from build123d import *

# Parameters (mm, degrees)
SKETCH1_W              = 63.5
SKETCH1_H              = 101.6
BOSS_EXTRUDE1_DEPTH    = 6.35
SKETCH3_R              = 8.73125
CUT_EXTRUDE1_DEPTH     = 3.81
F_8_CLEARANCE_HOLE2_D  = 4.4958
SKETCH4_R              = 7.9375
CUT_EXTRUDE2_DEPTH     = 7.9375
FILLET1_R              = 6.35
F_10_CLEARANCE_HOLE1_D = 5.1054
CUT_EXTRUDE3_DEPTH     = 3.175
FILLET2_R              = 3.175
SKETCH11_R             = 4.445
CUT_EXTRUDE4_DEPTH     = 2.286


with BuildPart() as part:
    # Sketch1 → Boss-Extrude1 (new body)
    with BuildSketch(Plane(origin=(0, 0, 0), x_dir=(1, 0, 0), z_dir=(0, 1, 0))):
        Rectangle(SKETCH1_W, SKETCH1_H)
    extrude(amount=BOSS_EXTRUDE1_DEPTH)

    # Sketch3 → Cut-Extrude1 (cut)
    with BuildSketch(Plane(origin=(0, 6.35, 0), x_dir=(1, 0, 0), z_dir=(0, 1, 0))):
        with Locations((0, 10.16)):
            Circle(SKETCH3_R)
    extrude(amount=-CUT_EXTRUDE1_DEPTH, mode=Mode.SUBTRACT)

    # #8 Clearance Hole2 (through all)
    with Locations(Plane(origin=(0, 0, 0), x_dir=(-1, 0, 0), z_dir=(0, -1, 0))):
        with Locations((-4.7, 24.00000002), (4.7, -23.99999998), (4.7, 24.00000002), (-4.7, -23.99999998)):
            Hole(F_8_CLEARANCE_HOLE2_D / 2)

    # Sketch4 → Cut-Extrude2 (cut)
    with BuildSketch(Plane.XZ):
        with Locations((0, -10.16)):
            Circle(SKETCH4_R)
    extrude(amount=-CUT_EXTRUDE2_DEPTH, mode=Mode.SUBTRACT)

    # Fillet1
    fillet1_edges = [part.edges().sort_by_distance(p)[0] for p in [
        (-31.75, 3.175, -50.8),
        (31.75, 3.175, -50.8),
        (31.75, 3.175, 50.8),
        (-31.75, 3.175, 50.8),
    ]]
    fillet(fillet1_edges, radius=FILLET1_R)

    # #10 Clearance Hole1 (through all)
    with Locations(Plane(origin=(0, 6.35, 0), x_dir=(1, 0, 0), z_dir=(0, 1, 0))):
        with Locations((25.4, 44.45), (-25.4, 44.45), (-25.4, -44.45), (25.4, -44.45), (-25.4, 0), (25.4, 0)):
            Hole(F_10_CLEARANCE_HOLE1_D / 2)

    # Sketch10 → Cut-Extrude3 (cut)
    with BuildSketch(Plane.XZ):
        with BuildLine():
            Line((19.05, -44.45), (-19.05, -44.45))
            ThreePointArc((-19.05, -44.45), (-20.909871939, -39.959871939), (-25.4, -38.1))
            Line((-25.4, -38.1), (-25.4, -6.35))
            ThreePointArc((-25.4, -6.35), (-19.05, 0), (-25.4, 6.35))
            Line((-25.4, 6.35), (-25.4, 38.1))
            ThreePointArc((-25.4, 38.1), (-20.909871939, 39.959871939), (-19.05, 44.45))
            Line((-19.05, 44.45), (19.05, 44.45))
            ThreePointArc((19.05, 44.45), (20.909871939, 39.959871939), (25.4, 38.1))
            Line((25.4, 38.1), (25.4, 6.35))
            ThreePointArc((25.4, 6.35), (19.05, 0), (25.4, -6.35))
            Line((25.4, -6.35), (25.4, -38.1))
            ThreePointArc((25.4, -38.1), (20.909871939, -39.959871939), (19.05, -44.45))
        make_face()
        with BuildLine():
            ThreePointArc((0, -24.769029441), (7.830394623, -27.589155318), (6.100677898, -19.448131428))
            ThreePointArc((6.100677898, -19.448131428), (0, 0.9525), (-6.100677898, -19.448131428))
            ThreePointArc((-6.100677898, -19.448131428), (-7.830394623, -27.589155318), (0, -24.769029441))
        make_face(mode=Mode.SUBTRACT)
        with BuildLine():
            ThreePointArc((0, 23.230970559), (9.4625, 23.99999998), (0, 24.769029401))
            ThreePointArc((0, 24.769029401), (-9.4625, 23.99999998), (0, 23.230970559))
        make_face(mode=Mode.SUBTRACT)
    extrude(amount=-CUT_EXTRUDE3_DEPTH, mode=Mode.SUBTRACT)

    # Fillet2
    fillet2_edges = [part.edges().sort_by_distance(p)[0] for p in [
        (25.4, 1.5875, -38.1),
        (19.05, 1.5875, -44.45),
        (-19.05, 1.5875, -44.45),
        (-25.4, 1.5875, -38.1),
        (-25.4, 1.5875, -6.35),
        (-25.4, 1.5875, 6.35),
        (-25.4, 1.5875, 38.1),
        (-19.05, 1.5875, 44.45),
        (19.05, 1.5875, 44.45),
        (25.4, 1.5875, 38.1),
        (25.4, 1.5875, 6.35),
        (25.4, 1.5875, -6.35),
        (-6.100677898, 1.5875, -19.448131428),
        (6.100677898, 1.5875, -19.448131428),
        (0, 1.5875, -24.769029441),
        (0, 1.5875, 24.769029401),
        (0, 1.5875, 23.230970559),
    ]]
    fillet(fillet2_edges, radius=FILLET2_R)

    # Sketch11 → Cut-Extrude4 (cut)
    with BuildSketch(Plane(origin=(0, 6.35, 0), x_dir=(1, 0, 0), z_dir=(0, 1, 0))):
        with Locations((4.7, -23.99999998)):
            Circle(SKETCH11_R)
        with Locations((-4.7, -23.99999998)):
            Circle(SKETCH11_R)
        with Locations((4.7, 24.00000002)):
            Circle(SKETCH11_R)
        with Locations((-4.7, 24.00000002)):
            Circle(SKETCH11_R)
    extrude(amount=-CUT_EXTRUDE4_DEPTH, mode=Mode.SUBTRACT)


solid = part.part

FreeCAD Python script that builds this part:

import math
import FreeCAD as App
import Part
import Sketcher

V = App.Vector
Q = App.Units.Quantity


def edges_at(feature, points):
    """Names of the edges that pass closest to the given points."""
    edges = feature.Shape.Edges
    near = lambda p: min(range(len(edges)), key=lambda i: edges[i].distToShape(Part.Vertex(*p))[0])
    return sorted({f"Edge{near(p) + 1}" for p in points})

doc = App.newDocument("Part")
params = doc.addObject("Spreadsheet::Sheet", "Params")
for row, (alias, value) in enumerate([
    ("sketch1_height", "4 in"),
    ("sketch1_width", "2.5 in"),
    ("pad1_length", "0.25 in"),
    ("sketch2_diameter", "0.6875 in"),
    ("pocket1_length", "0.15 in"),
    ("sketch3_diameter", "0.177 in"),
    ("hole_diameter", "0.177 in"),
    ("sketch4_diameter", "0.625 in"),
    ("pocket2_length", "0.3125 in"),
    ("fillet_radius", "0.25 in"),
    ("sketch5_diameter", "0.201 in"),
    ("hole2_diameter", "0.201 in"),
    ("sketch6_radius", "0.25 in"),
    ("sketch6_width", "1.5 in"),
    ("sketch6_radius2", "0.1875 in"),
    ("sketch6_radius3", "0.4375 in"),
    ("sketch6_height", "1.25 in"),
    ("pocket3_length", "0.125 in"),
    ("fillet2_radius", "0.125 in"),
    ("sketch7_diameter", "0.35 in"),
    ("pocket4_length", "0.09 in"),
], start=1):
    params.set(f"A{row}", alias)
    params.set(f"B{row}", "=" + value)
    params.setAlias(f"B{row}", alias)

body = doc.addObject("PartDesign::Body", "Body")

sketch1 = doc.addObject("Sketcher::SketchObject", "Sketch")
body.addObject(sketch1)
sketch1.AttachmentSupport = (doc.XZ_Plane, [""])
sketch1.MapMode = "FlatFace"
sketch1.addGeometry([
    Part.LineSegment(V(-31.75, -50.8, 0), V(-31.75, 50.8, 0)),
    Part.LineSegment(V(-31.75, 50.8, 0), V(31.75, 50.8, 0)),
    Part.LineSegment(V(31.75, 50.8, 0), V(31.75, -50.8, 0)),
    Part.LineSegment(V(31.75, -50.8, 0), V(-31.75, -50.8, 0)),
], False)
sketch1.addConstraint([
    Sketcher.Constraint("Coincident", 0, 2, 1, 1),
    Sketcher.Constraint("Coincident", 1, 2, 2, 1),
    Sketcher.Constraint("Coincident", 2, 2, 3, 1),
    Sketcher.Constraint("Coincident", 3, 2, 0, 1),
    Sketcher.Constraint("Vertical", 0),
    Sketcher.Constraint("Horizontal", 1),
    Sketcher.Constraint("Vertical", 2),
    Sketcher.Constraint("Horizontal", 3),
    Sketcher.Constraint("Symmetric", 0, 2, 2, 2, -1, 1),
    Sketcher.Constraint("DistanceY", 0, 1, 0, 2, Q("4 in")),
    Sketcher.Constraint("DistanceX", 1, 1, 1, 2, Q("2.5 in")),
])
sketch1.setExpression("Constraints[9]", "Params.sketch1_height")
sketch1.setExpression("Constraints[10]", "Params.sketch1_width")
pad1 = doc.addObject("PartDesign::Pad", "Pad")
body.addObject(pad1)
pad1.Profile = sketch1
pad1.setExpression("Length", "Params.pad1_length")
pad1.Reversed = True

sketch2 = doc.addObject("Sketcher::SketchObject", "Sketch001")
body.addObject(sketch2)
sketch2.AttachmentSupport = (doc.XZ_Plane, [""])
sketch2.MapMode = "FlatFace"
sketch2.AttachmentOffset = App.Placement(V(0, 0, -0.25 * 25.4), App.Rotation())
sketch2.addGeometry(Part.Circle(V(0, -10.16, 0), V(0, 0, 1), 8.73125), False)
sketch2.addConstraint([
    Sketcher.Constraint("PointOnObject", 0, 3, -2),
    Sketcher.Constraint("Diameter", 0, Q("0.6875 in")),
    Sketcher.Constraint("DistanceY", 0, 3, -1, 1, Q("0.4 in")),
])
sketch2.setExpression("Constraints[1]", "Params.sketch2_diameter")
pocket1 = doc.addObject("PartDesign::Pocket", "Pocket")
body.addObject(pocket1)
pocket1.Profile = sketch2
pocket1.setExpression("Length", "Params.pocket1_length")
pocket1.Reversed = True

sketch3 = doc.addObject("Sketcher::SketchObject", "Sketch002")
body.addObject(sketch3)
sketch3.AttachmentSupport = (doc.XZ_Plane, [""])
sketch3.MapMode = "FlatFace"
sketch3.addGeometry([
    Part.Circle(V(4.7, -24, 0), V(0, 0, 1), 2.2479),
    Part.Circle(V(-4.7, 24, 0), V(0, 0, 1), 2.2479),
    Part.Circle(V(-4.7, -24, 0), V(0, 0, 1), 2.2479),
    Part.Circle(V(4.7, 24, 0), V(0, 0, 1), 2.2479),
], False)
sketch3.addConstraint([
    Sketcher.Constraint("Equal", 0, 1),
    Sketcher.Constraint("Equal", 1, 2),
    Sketcher.Constraint("Equal", 2, 3),
    Sketcher.Constraint("Symmetric", 0, 3, 1, 3, -1, 1),
    Sketcher.Constraint("Symmetric", 2, 3, 3, 3, -1, 1),
    Sketcher.Constraint("Symmetric", 0, 3, 2, 3, -2),
    Sketcher.Constraint("Diameter", 0, Q("0.177 in")),
    Sketcher.Constraint("DistanceX", -1, 1, 0, 3, 4.7),
    Sketcher.Constraint("DistanceY", 0, 3, -1, 1, 24.0),
])
sketch3.setExpression("Constraints[6]", "Params.sketch3_diameter")
doc.recompute()
hole = doc.addObject("PartDesign::Hole", "Hole")
body.addObject(hole)
hole.Profile = sketch3
hole.ThreadType = "None"
hole.setExpression("Diameter", "Params.hole_diameter")
hole.DepthType = "ThroughAll"

sketch4 = doc.addObject("Sketcher::SketchObject", "Sketch003")
body.addObject(sketch4)
sketch4.AttachmentSupport = (doc.XZ_Plane, [""])
sketch4.MapMode = "FlatFace"
sketch4.addGeometry(Part.Circle(V(0, -10.16, 0), V(0, 0, 1), 7.9375), False)
sketch4.addConstraint([
    Sketcher.Constraint("PointOnObject", 0, 3, -2),
    Sketcher.Constraint("Diameter", 0, Q("0.625 in")),
    Sketcher.Constraint("DistanceY", 0, 3, -1, 1, Q("0.4 in")),
])
sketch4.setExpression("Constraints[1]", "Params.sketch4_diameter")
pocket2 = doc.addObject("PartDesign::Pocket", "Pocket001")
body.addObject(pocket2)
pocket2.Profile = sketch4
pocket2.setExpression("Length", "Params.pocket2_length")
doc.recompute()

fillet = doc.addObject("PartDesign::Fillet", "Fillet")
body.addObject(fillet)
fillet.Base = (pocket2, edges_at(pocket2, [
    (-31.75, 3.175, -50.8),
    (31.75, 3.175, -50.8),
    (31.75, 3.175, 50.8),
    (-31.75, 3.175, 50.8),
]))
fillet.setExpression("Radius", "Params.fillet_radius")

sketch5 = doc.addObject("Sketcher::SketchObject", "Sketch004")
body.addObject(sketch5)
sketch5.AttachmentSupport = (doc.XZ_Plane, [""])
sketch5.MapMode = "FlatFace"
sketch5.AttachmentOffset = App.Placement(V(0, 0, -0.25 * 25.4), App.Rotation())
sketch5.addGeometry([
    Part.Circle(V(25.4, -44.45, 0), V(0, 0, 1), 2.5527),
    Part.Circle(V(-25.4, -44.45, 0), V(0, 0, 1), 2.5527),
    Part.Circle(V(-25.4, 44.45, 0), V(0, 0, 1), 2.5527),
    Part.Circle(V(25.4, 44.45, 0), V(0, 0, 1), 2.5527),
    Part.Circle(V(-25.4, 0, 0), V(0, 0, 1), 2.5527),
    Part.Circle(V(25.4, 0, 0), V(0, 0, 1), 2.5527),
], False)
sketch5.addConstraint([
    Sketcher.Constraint("Equal", 0, 1),
    Sketcher.Constraint("Equal", 1, 2),
    Sketcher.Constraint("Equal", 2, 3),
    Sketcher.Constraint("Equal", 3, 4),
    Sketcher.Constraint("Equal", 4, 5),
    Sketcher.Constraint("Symmetric", 0, 3, 2, 3, -1, 1),
    Sketcher.Constraint("Symmetric", 1, 3, 3, 3, -1, 1),
    Sketcher.Constraint("Symmetric", 4, 3, 5, 3, -1, 1),
    Sketcher.Constraint("Symmetric", 0, 3, 1, 3, -2),
    Sketcher.Constraint("PointOnObject", 4, 3, -1),
    Sketcher.Constraint("Vertical", 2, 3, 4, 3),
    Sketcher.Constraint("Diameter", 0, Q("0.201 in")),
    Sketcher.Constraint("DistanceX", -1, 1, 0, 3, Q("1 in")),
    Sketcher.Constraint("DistanceY", 1, 3, 2, 3, Q("3.5 in")),
])
sketch5.setExpression("Constraints[11]", "Params.sketch5_diameter")
doc.recompute()
hole2 = doc.addObject("PartDesign::Hole", "Hole001")
body.addObject(hole2)
hole2.Profile = sketch5
hole2.ThreadType = "None"
hole2.setExpression("Diameter", "Params.hole2_diameter")
hole2.DepthType = "ThroughAll"
hole2.Reversed = True

sketch6 = doc.addObject("Sketcher::SketchObject", "Sketch005")
body.addObject(sketch6)
sketch6.AttachmentSupport = (doc.XZ_Plane, [""])
sketch6.MapMode = "FlatFace"
sketch6.addGeometry([
    Part.LineSegment(V(-19.05, -44.45, 0), V(19.05, -44.45, 0)),
    Part.ArcOfCircle(Part.Circle(V(25.4, -44.45, 0), V(0, 0, 1), 6.35), math.radians(90), math.radians(180)),
    Part.LineSegment(V(25.4, -38.1, 0), V(25.4, -6.35, 0)),
    Part.ArcOfCircle(Part.Circle(V(25.4, 0, 0), V(0, 0, 1), 6.35), math.radians(90), math.radians(270)),
    Part.LineSegment(V(25.4, 6.35, 0), V(25.4, 38.1, 0)),
    Part.ArcOfCircle(Part.Circle(V(25.4, 44.45, 0), V(0, 0, 1), 6.35), math.radians(180), math.radians(270)),
    Part.LineSegment(V(19.05, 44.45, 0), V(-19.05, 44.45, 0)),
    Part.ArcOfCircle(Part.Circle(V(-25.4, 44.45, 0), V(0, 0, 1), 6.35), math.radians(-90), math.radians(0)),
    Part.LineSegment(V(-25.4, 38.1, 0), V(-25.4, 6.35, 0)),
    Part.ArcOfCircle(Part.Circle(V(-25.4, 0, 0), V(0, 0, 1), 6.35), math.radians(-90), math.radians(90)),
    Part.LineSegment(V(-25.4, -6.35, 0), V(-25.4, -38.1, 0)),
    Part.ArcOfCircle(Part.Circle(V(-25.4, -44.45, 0), V(0, 0, 1), 6.35), math.radians(0), math.radians(90)),
    Part.ArcOfCircle(Part.Circle(V(-4.7, -24, 0), V(0, 0, 1), 4.7625), math.radians(107.103913), math.radians(350.707421)),
    Part.ArcOfCircle(Part.Circle(V(0, -10.16, 0), V(0, 0, 1), 11.1125), math.radians(-56.702086), math.radians(236.702086)),
    Part.ArcOfCircle(Part.Circle(V(4.7, -24, 0), V(0, 0, 1), 4.7625), math.radians(-170.707421), math.radians(72.896087)),
    Part.ArcOfCircle(Part.Circle(V(-4.7, 24, 0), V(0, 0, 1), 4.7625), math.radians(9.292579), math.radians(350.707421)),
    Part.ArcOfCircle(Part.Circle(V(4.7, 24, 0), V(0, 0, 1), 4.7625), math.radians(-170.707421), math.radians(170.707421)),
], False)
sketch6.addConstraint([
    Sketcher.Constraint("Coincident", 0, 2, 1, 2),
    Sketcher.Constraint("Coincident", 1, 1, 2, 1),
    Sketcher.Constraint("Coincident", 2, 2, 3, 2),
    Sketcher.Constraint("Coincident", 3, 1, 4, 1),
    Sketcher.Constraint("Coincident", 4, 2, 5, 2),
    Sketcher.Constraint("Coincident", 5, 1, 6, 1),
    Sketcher.Constraint("Coincident", 6, 2, 7, 2),
    Sketcher.Constraint("Coincident", 7, 1, 8, 1),
    Sketcher.Constraint("Coincident", 8, 2, 9, 2),
    Sketcher.Constraint("Coincident", 9, 1, 10, 1),
    Sketcher.Constraint("Coincident", 10, 2, 11, 2),
    Sketcher.Constraint("Coincident", 11, 1, 0, 1),
    Sketcher.Constraint("Coincident", 12, 1, 13, 2),
    Sketcher.Constraint("Coincident", 13, 1, 14, 2),
    Sketcher.Constraint("Coincident", 14, 1, 12, 2),
    Sketcher.Constraint("Coincident", 15, 1, 16, 2),
    Sketcher.Constraint("Coincident", 16, 1, 15, 2),
    Sketcher.Constraint("Horizontal", 0),
    Sketcher.Constraint("Vertical", 2),
    Sketcher.Constraint("Vertical", 4),
    Sketcher.Constraint("Horizontal", 6),
    Sketcher.Constraint("Vertical", 8),
    Sketcher.Constraint("Vertical", 10),
    Sketcher.Constraint("Equal", 1, 3),
    Sketcher.Constraint("Equal", 3, 5),
    Sketcher.Constraint("Equal", 5, 7),
    Sketcher.Constraint("Equal", 7, 9),
    Sketcher.Constraint("Equal", 9, 11),
    Sketcher.Constraint("Equal", 12, 14),
    Sketcher.Constraint("Equal", 14, 15),
    Sketcher.Constraint("Equal", 15, 16),
    Sketcher.Constraint("Symmetric", 1, 3, 7, 3, -1, 1),
    Sketcher.Constraint("Symmetric", 3, 3, 9, 3, -1, 1),
    Sketcher.Constraint("Symmetric", 5, 3, 11, 3, -1, 1),
    Sketcher.Constraint("Symmetric", 14, 3, 15, 3, -1, 1),
    Sketcher.Constraint("Symmetric", 12, 3, 16, 3, -1, 1),
    Sketcher.Constraint("Symmetric", 5, 3, 7, 3, -2),
    Sketcher.Constraint("Symmetric", 12, 3, 14, 3, -2),
    Sketcher.Constraint("Symmetric", 3, 1, 8, 2, -2),
    Sketcher.Constraint("PointOnObject", 13, 3, -2),
    Sketcher.Constraint("Horizontal", 11, 3, 0, 2),
    Sketcher.Constraint("Horizontal", 7, 3, 5, 1),
    Sketcher.Constraint("Vertical", 1, 3, 3, 3),
    Sketcher.Constraint("Vertical", 5, 3, 1, 1),
    Sketcher.Constraint("Vertical", 2, 2, 3, 1),
    Sketcher.Constraint("Vertical", 8, 2, 9, 1),
    Sketcher.Constraint("Radius", 1, Q("0.25 in")),
    Sketcher.Constraint("DistanceX", 0, 1, 0, 2, Q("1.5 in")),
    Sketcher.Constraint("Radius", 12, Q("0.1875 in")),
    Sketcher.Constraint("Radius", 13, Q("0.4375 in")),
    Sketcher.Constraint("DistanceY", 2, 1, 2, 2, Q("1.25 in")),
    Sketcher.Constraint("DistanceY", 13, 3, -1, 1, Q("0.4 in")),
    Sketcher.Constraint("DistanceX", 12, 3, -1, 1, 4.7),
    Sketcher.Constraint("DistanceY", 12, 3, -1, 1, 24.0),
])
sketch6.setExpression("Constraints[46]", "Params.sketch6_radius")
sketch6.setExpression("Constraints[47]", "Params.sketch6_width")
sketch6.setExpression("Constraints[48]", "Params.sketch6_radius2")
sketch6.setExpression("Constraints[49]", "Params.sketch6_radius3")
sketch6.setExpression("Constraints[50]", "Params.sketch6_height")
pocket3 = doc.addObject("PartDesign::Pocket", "Pocket002")
body.addObject(pocket3)
pocket3.Profile = sketch6
pocket3.setExpression("Length", "Params.pocket3_length")
doc.recompute()

fillet2 = doc.addObject("PartDesign::Fillet", "Fillet001")
body.addObject(fillet2)
fillet2.Base = (pocket3, edges_at(pocket3, [
    (25.4, 1.587, -38.1),
    (19.05, 1.587, -44.45),
    (-19.05, 1.587, -44.45),
    (-25.4, 1.587, -38.1),
    (-25.4, 1.587, -6.35),
    (-25.4, 1.587, 6.35),
    (-25.4, 1.587, 38.1),
    (-19.05, 1.587, 44.45),
    (19.05, 1.587, 44.45),
    (25.4, 1.587, 38.1),
    (25.4, 1.587, 6.35),
    (25.4, 1.587, -6.35),
    (-6.101, 1.587, -19.448),
    (6.101, 1.587, -19.448),
    (0, 1.587, -24.769),
    (0, 1.587, 24.769),
    (0, 1.587, 23.231),
]))
fillet2.setExpression("Radius", "Params.fillet2_radius")

sketch7 = doc.addObject("Sketcher::SketchObject", "Sketch006")
body.addObject(sketch7)
sketch7.AttachmentSupport = (doc.XZ_Plane, [""])
sketch7.MapMode = "FlatFace"
sketch7.AttachmentOffset = App.Placement(V(0, 0, -0.25 * 25.4), App.Rotation())
sketch7.addGeometry([
    Part.Circle(V(4.7, 24, 0), V(0, 0, 1), 4.445),
    Part.Circle(V(-4.7, 24, 0), V(0, 0, 1), 4.445),
    Part.Circle(V(4.7, -24, 0), V(0, 0, 1), 4.445),
    Part.Circle(V(-4.7, -24, 0), V(0, 0, 1), 4.445),
], False)
sketch7.addConstraint([
    Sketcher.Constraint("Equal", 0, 1),
    Sketcher.Constraint("Equal", 1, 2),
    Sketcher.Constraint("Equal", 2, 3),
    Sketcher.Constraint("Symmetric", 1, 3, 2, 3, -1, 1),
    Sketcher.Constraint("Symmetric", 0, 3, 3, 3, -1, 1),
    Sketcher.Constraint("Symmetric", 0, 3, 1, 3, -2),
    Sketcher.Constraint("Diameter", 0, Q("0.35 in")),
    Sketcher.Constraint("DistanceX", -1, 1, 0, 3, 4.7),
    Sketcher.Constraint("DistanceY", -1, 1, 0, 3, 24.0),
])
sketch7.setExpression("Constraints[6]", "Params.sketch7_diameter")
pocket4 = doc.addObject("PartDesign::Pocket", "Pocket003")
body.addObject(pocket4)
pocket4.Profile = sketch7
pocket4.setExpression("Length", "Params.pocket4_length")
pocket4.Reversed = True

doc.recompute()
